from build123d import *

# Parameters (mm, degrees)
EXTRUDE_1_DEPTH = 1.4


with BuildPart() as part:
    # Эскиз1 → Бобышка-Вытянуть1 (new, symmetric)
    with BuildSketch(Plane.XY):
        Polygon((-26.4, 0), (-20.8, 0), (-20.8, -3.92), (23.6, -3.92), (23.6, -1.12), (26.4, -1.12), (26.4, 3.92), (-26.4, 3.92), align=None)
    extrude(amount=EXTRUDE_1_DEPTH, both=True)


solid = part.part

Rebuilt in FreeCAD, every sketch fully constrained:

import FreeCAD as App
import Part
import Sketcher
from FreeCAD import Vector

doc = App.newDocument("Part")
body = doc.addObject("PartDesign::Body", "Body")

# Sketch on XY plane
sketch1 = body.newObject("Sketcher::SketchObject", "Sketch")
sketch1.AttachmentSupport = (doc.getObject("XY_Plane"), [""])
sketch1.MapMode = "FlatFace"
sketch1.addGeometry([
    Part.LineSegment(Vector(-26.4, 0, 0), Vector(-20.8, 0, 0)),  # 0
    Part.LineSegment(Vector(-20.8, 0, 0), Vector(-20.8, -3.9, 0)),  # 1
    Part.LineSegment(Vector(-20.8, -3.9, 0), Vector(23.6, -3.9, 0)),  # 2
    Part.LineSegment(Vector(23.6, -3.9, 0), Vector(23.6, -1.1, 0)),  # 3
    Part.LineSegment(Vector(23.6, -1.1, 0), Vector(26.4, -1.1, 0)),  # 4
    Part.LineSegment(Vector(26.4, -1.1, 0), Vector(26.4, 3.9, 0)),  # 5
    Part.LineSegment(Vector(26.4, 3.9, 0), Vector(-26.4, 3.9, 0)),  # 6
    Part.LineSegment(Vector(-26.4, 3.9, 0), Vector(-26.4, 0, 0)),  # 7
], False)
sketch1.addConstraint([
    Sketcher.Constraint("Coincident", 0, 2, 1, 1),
    Sketcher.Constraint("Coincident", 1, 2, 2, 1),
    Sketcher.Constraint("Coincident", 2, 2, 3, 1),
    Sketcher.Constraint("Coincident", 3, 2, 4, 1),
    Sketcher.Constraint("Coincident", 4, 2, 5, 1),
    Sketcher.Constraint("Coincident", 5, 2, 6, 1),
    Sketcher.Constraint("Coincident", 6, 2, 7, 1),
    Sketcher.Constraint("Coincident", 7, 2, 0, 1),
    Sketcher.Constraint("Horizontal", 0),
    Sketcher.Constraint("Vertical", 1),
    Sketcher.Constraint("Horizontal", 2),
    Sketcher.Constraint("Vertical", 3),
    Sketcher.Constraint("Horizontal", 4),
    Sketcher.Constraint("Vertical", 5),
    Sketcher.Constraint("Horizontal", 6),
    Sketcher.Constraint("Vertical", 7),
    Sketcher.Constraint("PointOnObject", 0, 2, -1),
    Sketcher.Constraint("Equal", 4, 3),
    Sketcher.Constraint("Equal", 1, 7),
    Sketcher.Constraint("DistanceX", 0, 1, 0, 2, 5.6),
    Sketcher.Constraint("DistanceX", 2, 1, 2, 2, 44.4),
    Sketcher.Constraint("DistanceX", 4, 1, 4, 2, 2.8),
    Sketcher.Constraint("DistanceY", 1, 2, 1, 1, 3.92),
    Sketcher.Constraint("DistanceX", 0, 2, -1, 1, 20.8),
])
pad1 = body.newObject("PartDesign::Pad", "Pad")
pad1.Profile = sketch1
pad1.Length = 2.8
pad1.Midplane = True

doc.recompute()
